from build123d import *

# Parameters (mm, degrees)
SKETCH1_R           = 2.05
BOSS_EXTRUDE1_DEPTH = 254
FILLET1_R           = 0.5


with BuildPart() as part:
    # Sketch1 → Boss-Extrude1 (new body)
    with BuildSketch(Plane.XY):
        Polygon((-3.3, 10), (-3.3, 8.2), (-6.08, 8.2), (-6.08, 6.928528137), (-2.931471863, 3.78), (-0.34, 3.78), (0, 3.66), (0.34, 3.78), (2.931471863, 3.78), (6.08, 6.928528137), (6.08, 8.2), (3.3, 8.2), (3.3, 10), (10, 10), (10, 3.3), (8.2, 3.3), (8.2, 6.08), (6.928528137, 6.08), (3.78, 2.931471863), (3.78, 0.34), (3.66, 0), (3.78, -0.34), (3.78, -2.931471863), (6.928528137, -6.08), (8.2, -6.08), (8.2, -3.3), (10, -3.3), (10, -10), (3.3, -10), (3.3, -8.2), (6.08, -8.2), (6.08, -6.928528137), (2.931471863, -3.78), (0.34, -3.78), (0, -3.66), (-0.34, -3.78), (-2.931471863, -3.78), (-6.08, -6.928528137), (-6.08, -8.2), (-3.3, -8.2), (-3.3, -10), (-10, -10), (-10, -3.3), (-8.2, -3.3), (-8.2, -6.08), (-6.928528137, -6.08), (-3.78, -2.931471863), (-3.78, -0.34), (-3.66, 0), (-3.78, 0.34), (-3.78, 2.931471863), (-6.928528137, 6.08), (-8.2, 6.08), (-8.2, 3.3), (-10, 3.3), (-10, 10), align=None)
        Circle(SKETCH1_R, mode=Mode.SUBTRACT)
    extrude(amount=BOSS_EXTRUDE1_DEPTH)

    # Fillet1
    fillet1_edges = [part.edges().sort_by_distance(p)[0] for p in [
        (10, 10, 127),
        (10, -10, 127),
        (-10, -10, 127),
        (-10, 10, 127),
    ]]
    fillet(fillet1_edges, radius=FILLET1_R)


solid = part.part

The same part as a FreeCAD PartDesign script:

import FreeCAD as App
import Part
import Sketcher

V = App.Vector


def edges_at(feature, points):
    """Names of the edges that pass closest to the given points."""
    edges = feature.Shape.Edges
    near = lambda p: min(range(len(edges)), key=lambda i: edges[i].distToShape(Part.Vertex(*p))[0])
    return sorted({f"Edge{near(p) + 1}" for p in points})

doc = App.newDocument("Part")
body = doc.addObject("PartDesign::Body", "Body")

sketch1 = body.newObject("Sketcher::SketchObject", "Sketch")
sketch1.AttachmentSupport = (doc.getObject("XY_Plane"), [""])
sketch1.MapMode = "FlatFace"
sketch1.addGeometry([
    Part.LineSegment(V(-3.3, 8.2, 0), V(-3.3, 10, 0)),
    Part.LineSegment(V(-3.3, 10, 0), V(-10, 10, 0)),
    Part.LineSegment(V(-10, 10, 0), V(-10, 3.3, 0)),
    Part.LineSegment(V(-10, 3.3, 0), V(-8.2, 3.3, 0)),
    Part.LineSegment(V(-8.2, 3.3, 0), V(-8.2, 6.08, 0)),
    Part.LineSegment(V(-8.2, 6.08, 0), V(-6.93, 6.08, 0)),
    Part.LineSegment(V(-6.93, 6.08, 0), V(-3.78, 2.93, 0)),
    Part.LineSegment(V(-3.78, 2.93, 0), V(-3.78, 0.34, 0)),
    Part.LineSegment(V(-3.78, 0.34, 0), V(-3.66, 0, 0)),
    Part.LineSegment(V(-3.66, 0, 0), V(-3.78, -0.34, 0)),
    Part.LineSegment(V(-3.78, -0.34, 0), V(-3.78, -2.93, 0)),
    Part.LineSegment(V(-3.78, -2.93, 0), V(-6.93, -6.08, 0)),
    Part.LineSegment(V(-6.93, -6.08, 0), V(-8.2, -6.08, 0)),
    Part.LineSegment(V(-8.2, -6.08, 0), V(-8.2, -3.3, 0)),
    Part.LineSegment(V(-8.2, -3.3, 0), V(-10, -3.3, 0)),
    Part.LineSegment(V(-10, -3.3, 0), V(-10, -10, 0)),
    Part.LineSegment(V(-10, -10, 0), V(-3.3, -10, 0)),
    Part.LineSegment(V(-3.3, -10, 0), V(-3.3, -8.2, 0)),
    Part.LineSegment(V(-3.3, -8.2, 0), V(-6.08, -8.2, 0)),
    Part.LineSegment(V(-6.08, -8.2, 0), V(-6.08, -6.93, 0)),
    Part.LineSegment(V(-6.08, -6.93, 0), V(-2.93, -3.78, 0)),
    Part.LineSegment(V(-2.93, -3.78, 0), V(-0.34, -3.78, 0)),
    Part.LineSegment(V(-0.34, -3.78, 0), V(0, -3.66, 0)),
    Part.LineSegment(V(0, -3.66, 0), V(0.34, -3.78, 0)),
    Part.LineSegment(V(0.34, -3.78, 0), V(2.93, -3.78, 0)),
    Part.LineSegment(V(2.93, -3.78, 0), V(6.08, -6.93, 0)),
    Part.LineSegment(V(6.08, -6.93, 0), V(6.08, -8.2, 0)),
    Part.LineSegment(V(6.08, -8.2, 0), V(3.3, -8.2, 0)),
    Part.LineSegment(V(3.3, -8.2, 0), V(3.3, -10, 0)),
    Part.LineSegment(V(3.3, -10, 0), V(10, -10, 0)),
    Part.LineSegment(V(10, -10, 0), V(10, -3.3, 0)),
    Part.LineSegment(V(10, -3.3, 0), V(8.2, -3.3, 0)),
    Part.LineSegment(V(8.2, -3.3, 0), V(8.2, -6.08, 0)),
    Part.LineSegment(V(8.2, -6.08, 0), V(6.93, -6.08, 0)),
    Part.LineSegment(V(6.93, -6.08, 0), V(3.78, -2.93, 0)),
    Part.LineSegment(V(3.78, -2.93, 0), V(3.78, -0.34, 0)),
    Part.LineSegment(V(3.78, -0.34, 0), V(3.66, 0, 0)),
    Part.LineSegment(V(3.66, 0, 0), V(3.78, 0.34, 0)),
    Part.LineSegment(V(3.78, 0.34, 0), V(3.78, 2.93, 0)),
    Part.LineSegment(V(3.78, 2.93, 0), V(6.93, 6.08, 0)),
    Part.LineSegment(V(6.93, 6.08, 0), V(8.2, 6.08, 0)),
    Part.LineSegment(V(8.2, 6.08, 0), V(8.2, 3.3, 0)),
    Part.LineSegment(V(8.2, 3.3, 0), V(10, 3.3, 0)),
    Part.LineSegment(V(10, 3.3, 0), V(10, 10, 0)),
    Part.LineSegment(V(10, 10, 0), V(3.3, 10, 0)),
    Part.LineSegment(V(3.3, 10, 0), V(3.3, 8.2, 0)),
    Part.LineSegment(V(3.3, 8.2, 0), V(6.08, 8.2, 0)),
    Part.LineSegment(V(6.08, 8.2, 0), V(6.08, 6.93, 0)),
    Part.LineSegment(V(6.08, 6.93, 0), V(2.93, 3.78, 0)),
    Part.LineSegment(V(2.93, 3.78, 0), V(0.34, 3.78, 0)),
    Part.LineSegment(V(0.34, 3.78, 0), V(0, 3.66, 0)),
    Part.LineSegment(V(0, 3.66, 0), V(-0.34, 3.78, 0)),
    Part.LineSegment(V(-0.34, 3.78, 0), V(-2.93, 3.78, 0)),
    Part.LineSegment(V(-2.93, 3.78, 0), V(-6.08, 6.93, 0)),
    Part.LineSegment(V(-6.08, 6.93, 0), V(-6.08, 8.2, 0)),
    Part.LineSegment(V(-6.08, 8.2, 0), V(-3.3, 8.2, 0)),
    Part.Circle(V(0, 0, 0), V(0, 0, 1), 2.05),
], False)
sketch1.addConstraint([
    Sketcher.Constraint("Coincident", 0, 2, 1, 1),
    Sketcher.Constraint("Coincident", 1, 2, 2, 1),
    Sketcher.Constraint("Coincident", 2, 2, 3, 1),
    Sketcher.Constraint("Coincident", 3, 2, 4, 1),
    Sketcher.Constraint("Coincident", 4, 2, 5, 1),
    Sketcher.Constraint("Coincident", 5, 2, 6, 1),
    Sketcher.Constraint("Coincident", 6, 2, 7, 1),
    Sketcher.Constraint("Coincident", 7, 2, 8, 1),
    Sketcher.Constraint("Coincident", 8, 2, 9, 1),
    Sketcher.Constraint("Coincident", 9, 2, 10, 1),
    Sketcher.Constraint("Coincident", 10, 2, 11, 1),
    Sketcher.Constraint("Coincident", 11, 2, 12, 1),
    Sketcher.Constraint("Coincident", 12, 2, 13, 1),
    Sketcher.Constraint("Coincident", 13, 2, 14, 1),
    Sketcher.Constraint("Coincident", 14, 2, 15, 1),
    Sketcher.Constraint("Coincident", 15, 2, 16, 1),
    Sketcher.Constraint("Coincident", 16, 2, 17, 1),
    Sketcher.Constraint("Coincident", 17, 2, 18, 1),
    Sketcher.Constraint("Coincident", 18, 2, 19, 1),
    Sketcher.Constraint("Coincident", 19, 2, 20, 1),
    Sketcher.Constraint("Coincident", 20, 2, 21, 1),
    Sketcher.Constraint("Coincident", 21, 2, 22, 1),
    Sketcher.Constraint("Coincident", 22, 2, 23, 1),
    Sketcher.Constraint("Coincident", 23, 2, 24, 1),
    Sketcher.Constraint("Coincident", 24, 2, 25, 1),
    Sketcher.Constraint("Coincident", 25, 2, 26, 1),
    Sketcher.Constraint("Coincident", 26, 2, 27, 1),
    Sketcher.Constraint("Coincident", 27, 2, 28, 1),
    Sketcher.Constraint("Coincident", 28, 2, 29, 1),
    Sketcher.Constraint("Coincident", 29, 2, 30, 1),
    Sketcher.Constraint("Coincident", 30, 2, 31, 1),
    Sketcher.Constraint("Coincident", 31, 2, 32, 1),
    Sketcher.Constraint("Coincident", 32, 2, 33, 1),
    Sketcher.Constraint("Coincident", 33, 2, 34, 1),
    Sketcher.Constraint("Coincident", 34, 2, 35, 1),
    Sketcher.Constraint("Coincident", 35, 2, 36, 1),
    Sketcher.Constraint("Coincident", 36, 2, 37, 1),
    Sketcher.Constraint("Coincident", 37, 2, 38, 1),
    Sketcher.Constraint("Coincident", 38, 2, 39, 1),
    Sketcher.Constraint("Coincident", 39, 2, 40, 1),
    Sketcher.Constraint("Coincident", 40, 2, 41, 1),
    Sketcher.Constraint("Coincident", 41, 2, 42, 1),
    Sketcher.Constraint("Coincident", 42, 2, 43, 1),
    Sketcher.Constraint("Coincident", 43, 2, 44, 1),
    Sketcher.Constraint("Coincident", 44, 2, 45, 1),
    Sketcher.Constraint("Coincident", 45, 2, 46, 1),
    Sketcher.Constraint("Coincident", 46, 2, 47, 1),
    Sketcher.Constraint("Coincident", 47, 2, 48, 1),
    Sketcher.Constraint("Coincident", 48, 2, 49, 1),
    Sketcher.Constraint("Coincident", 49, 2, 50, 1),
    Sketcher.Constraint("Coincident", 50, 2, 51, 1),
    Sketcher.Constraint("Coincident", 51, 2, 52, 1),
    Sketcher.Constraint("Coincident", 52, 2, 53, 1),
    Sketcher.Constraint("Coincident", 53, 2, 54, 1),
    Sketcher.Constraint("Coincident", 54, 2, 55, 1),
    Sketcher.Constraint("Coincident", 55, 2, 0, 1),
    Sketcher.Constraint("Vertical", 0),
    Sketcher.Constraint("Horizontal", 1),
    Sketcher.Constraint("Vertical", 2),
    Sketcher.Constraint("Horizontal", 3),
    Sketcher.Constraint("Vertical", 4),
    Sketcher.Constraint("Horizontal", 5),
    Sketcher.Constraint("Vertical", 7),
    Sketcher.Constraint("Vertical", 10),
    Sketcher.Constraint("Horizontal", 12),
    Sketcher.Constraint("Vertical", 13),
    Sketcher.Constraint("Horizontal", 14),
    Sketcher.Constraint("Vertical", 15),
    Sketcher.Constraint("Horizontal", 16),
    Sketcher.Constraint("Vertical", 17),
    Sketcher.Constraint("Horizontal", 18),
    Sketcher.Constraint("Vertical", 19),
    Sketcher.Constraint("Horizontal", 21),
    Sketcher.Constraint("Horizontal", 24),
    Sketcher.Constraint("Vertical", 26),
    Sketcher.Constraint("Horizontal", 27),
    Sketcher.Constraint("Vertical", 28),
    Sketcher.Constraint("Horizontal", 29),
    Sketcher.Constraint("Vertical", 30),
    Sketcher.Constraint("Horizontal", 31),
    Sketcher.Constraint("Vertical", 32),
    Sketcher.Constraint("Horizontal", 33),
    Sketcher.Constraint("Vertical", 35),
    Sketcher.Constraint("Vertical", 38),
    Sketcher.Constraint("Horizontal", 40),
    Sketcher.Constraint("Vertical", 41),
    Sketcher.Constraint("Horizontal", 42),
    Sketcher.Constraint("Vertical", 43),
    Sketcher.Constraint("Horizontal", 44),
    Sketcher.Constraint("Vertical", 45),
    Sketcher.Constraint("Horizontal", 46),
    Sketcher.Constraint("Vertical", 47),
    Sketcher.Constraint("Horizontal", 49),
    Sketcher.Constraint("Horizontal", 52),
    Sketcher.Constraint("Vertical", 54),
    Sketcher.Constraint("Horizontal", 55),
    Sketcher.Constraint("Coincident", 56, 3, -1, 1),
    Sketcher.Constraint("Symmetric", 0, 2, 28, 2, -1, 1),
    Sketcher.Constraint("Symmetric", 2, 2, 30, 2, -1, 1),
    Sketcher.Constraint("Symmetric", 4, 2, 32, 2, -1, 1),
    Sketcher.Constraint("Symmetric", 6, 2, 34, 2, -1, 1),
    Sketcher.Constraint("Symmetric", 8, 2, 36, 2, -1, 1),
    Sketcher.Constraint("Symmetric", 9, 2, 37, 2, -1, 1),
    Sketcher.Constraint("Symmetric", 11, 2, 39, 2, -1, 1),
    Sketcher.Constraint("Symmetric", 13, 2, 41, 2, -1, 1),
    Sketcher.Constraint("Symmetric", 15, 2, 43, 2, -1, 1),
    Sketcher.Constraint("Symmetric", 17, 2, 45, 2, -1, 1),
    Sketcher.Constraint("Symmetric", 19, 2, 47, 2, -1, 1),
    Sketcher.Constraint("Symmetric", 20, 2, 48, 2, -1, 1),
    Sketcher.Constraint("Symmetric", 22, 2, 50, 2, -1, 1),
    Sketcher.Constraint("Symmetric", 23, 2, 51, 2, -1, 1),
    Sketcher.Constraint("Symmetric", 25, 2, 53, 2, -1, 1),
    Sketcher.Constraint("Symmetric", 21, 2, 23, 2, -2),
    Sketcher.Constraint("Symmetric", 19, 2, 25, 2, -2),
    Sketcher.Constraint("Symmetric", 17, 2, 27, 2, -2),
    Sketcher.Constraint("Symmetric", 15, 2, 29, 2, -2),
    Sketcher.Constraint("Symmetric", 13, 2, 31, 2, -2),
    Sketcher.Constraint("Symmetric", 11, 2, 33, 2, -2),
    Sketcher.Constraint("Symmetric", 10, 2, 34, 2, -2),
    Sketcher.Constraint("PointOnObject", 8, 2, -1),
    Sketcher.Constraint("PointOnObject", 22, 2, -2),
    Sketcher.Constraint("Perpendicular", 6, 11),
    Sketcher.Constraint("Parallel", 11, 20),
    Sketcher.Constraint("Perpendicular", 8, 22),
    Sketcher.Constraint("Perpendicular", 9, 23),
    Sketcher.Constraint("Perpendicular", 20, 25),
    Sketcher.Constraint("Parallel", 25, 34),
    Sketcher.Constraint("Perpendicular", 22, 36),
    Sketcher.Constraint("Perpendicular", 34, 39),
    Sketcher.Constraint("Perpendicular", 36, 50),
    Sketcher.Constraint("Perpendicular", 48, 53),
    Sketcher.Constraint("Horizontal", 46, 2, 54, 2),
    Sketcher.Constraint("Equal", 42, 0),
    Sketcher.Constraint("Equal", 44, 2),
    Sketcher.Constraint("Equal", 55, 4),
    Sketcher.Constraint("Equal", 52, 7),
    Sketcher.Constraint("Equal", 40, 19),
    Sketcher.Constraint("Equal", 11, 20),
    Sketcher.Constraint("Equal", 9, 22),
    Sketcher.Constraint("Diameter", 56, 4.1),
    Sketcher.Constraint("DistanceX", 1, 2, 1, 1, 6.7),
    Sketcher.Constraint("DistanceX", 3, 1, 3, 2, 1.8),
    Sketcher.Constraint("DistanceY", -1, 1, 0, 2, 10.0),
    Sketcher.Constraint("DistanceX", 18, 2, 18, 1, 2.78),
    Sketcher.Constraint("DistanceX", 6, 2, -1, 1, 3.78),
    Sketcher.Constraint("DistanceY", -1, 1, 7, 2, 0.34),
    Sketcher.Constraint("DistanceX", 8, 2, -1, 1, 3.66),
    Sketcher.Constraint("DistanceX", 5, 1, 5, 2, 1.271472),
])
pad1 = body.newObject("PartDesign::Pad", "Pad")
pad1.Profile = sketch1
pad1.Length = 254
doc.recompute()

fillet = body.newObject("PartDesign::Fillet", "Fillet")
fillet.Base = (pad1, edges_at(pad1, [
    (10, 10, 127),
    (10, -10, 127),
    (-10, -10, 127),
    (-10, 10, 127),
]))
fillet.Radius = 0.5

doc.recompute()
